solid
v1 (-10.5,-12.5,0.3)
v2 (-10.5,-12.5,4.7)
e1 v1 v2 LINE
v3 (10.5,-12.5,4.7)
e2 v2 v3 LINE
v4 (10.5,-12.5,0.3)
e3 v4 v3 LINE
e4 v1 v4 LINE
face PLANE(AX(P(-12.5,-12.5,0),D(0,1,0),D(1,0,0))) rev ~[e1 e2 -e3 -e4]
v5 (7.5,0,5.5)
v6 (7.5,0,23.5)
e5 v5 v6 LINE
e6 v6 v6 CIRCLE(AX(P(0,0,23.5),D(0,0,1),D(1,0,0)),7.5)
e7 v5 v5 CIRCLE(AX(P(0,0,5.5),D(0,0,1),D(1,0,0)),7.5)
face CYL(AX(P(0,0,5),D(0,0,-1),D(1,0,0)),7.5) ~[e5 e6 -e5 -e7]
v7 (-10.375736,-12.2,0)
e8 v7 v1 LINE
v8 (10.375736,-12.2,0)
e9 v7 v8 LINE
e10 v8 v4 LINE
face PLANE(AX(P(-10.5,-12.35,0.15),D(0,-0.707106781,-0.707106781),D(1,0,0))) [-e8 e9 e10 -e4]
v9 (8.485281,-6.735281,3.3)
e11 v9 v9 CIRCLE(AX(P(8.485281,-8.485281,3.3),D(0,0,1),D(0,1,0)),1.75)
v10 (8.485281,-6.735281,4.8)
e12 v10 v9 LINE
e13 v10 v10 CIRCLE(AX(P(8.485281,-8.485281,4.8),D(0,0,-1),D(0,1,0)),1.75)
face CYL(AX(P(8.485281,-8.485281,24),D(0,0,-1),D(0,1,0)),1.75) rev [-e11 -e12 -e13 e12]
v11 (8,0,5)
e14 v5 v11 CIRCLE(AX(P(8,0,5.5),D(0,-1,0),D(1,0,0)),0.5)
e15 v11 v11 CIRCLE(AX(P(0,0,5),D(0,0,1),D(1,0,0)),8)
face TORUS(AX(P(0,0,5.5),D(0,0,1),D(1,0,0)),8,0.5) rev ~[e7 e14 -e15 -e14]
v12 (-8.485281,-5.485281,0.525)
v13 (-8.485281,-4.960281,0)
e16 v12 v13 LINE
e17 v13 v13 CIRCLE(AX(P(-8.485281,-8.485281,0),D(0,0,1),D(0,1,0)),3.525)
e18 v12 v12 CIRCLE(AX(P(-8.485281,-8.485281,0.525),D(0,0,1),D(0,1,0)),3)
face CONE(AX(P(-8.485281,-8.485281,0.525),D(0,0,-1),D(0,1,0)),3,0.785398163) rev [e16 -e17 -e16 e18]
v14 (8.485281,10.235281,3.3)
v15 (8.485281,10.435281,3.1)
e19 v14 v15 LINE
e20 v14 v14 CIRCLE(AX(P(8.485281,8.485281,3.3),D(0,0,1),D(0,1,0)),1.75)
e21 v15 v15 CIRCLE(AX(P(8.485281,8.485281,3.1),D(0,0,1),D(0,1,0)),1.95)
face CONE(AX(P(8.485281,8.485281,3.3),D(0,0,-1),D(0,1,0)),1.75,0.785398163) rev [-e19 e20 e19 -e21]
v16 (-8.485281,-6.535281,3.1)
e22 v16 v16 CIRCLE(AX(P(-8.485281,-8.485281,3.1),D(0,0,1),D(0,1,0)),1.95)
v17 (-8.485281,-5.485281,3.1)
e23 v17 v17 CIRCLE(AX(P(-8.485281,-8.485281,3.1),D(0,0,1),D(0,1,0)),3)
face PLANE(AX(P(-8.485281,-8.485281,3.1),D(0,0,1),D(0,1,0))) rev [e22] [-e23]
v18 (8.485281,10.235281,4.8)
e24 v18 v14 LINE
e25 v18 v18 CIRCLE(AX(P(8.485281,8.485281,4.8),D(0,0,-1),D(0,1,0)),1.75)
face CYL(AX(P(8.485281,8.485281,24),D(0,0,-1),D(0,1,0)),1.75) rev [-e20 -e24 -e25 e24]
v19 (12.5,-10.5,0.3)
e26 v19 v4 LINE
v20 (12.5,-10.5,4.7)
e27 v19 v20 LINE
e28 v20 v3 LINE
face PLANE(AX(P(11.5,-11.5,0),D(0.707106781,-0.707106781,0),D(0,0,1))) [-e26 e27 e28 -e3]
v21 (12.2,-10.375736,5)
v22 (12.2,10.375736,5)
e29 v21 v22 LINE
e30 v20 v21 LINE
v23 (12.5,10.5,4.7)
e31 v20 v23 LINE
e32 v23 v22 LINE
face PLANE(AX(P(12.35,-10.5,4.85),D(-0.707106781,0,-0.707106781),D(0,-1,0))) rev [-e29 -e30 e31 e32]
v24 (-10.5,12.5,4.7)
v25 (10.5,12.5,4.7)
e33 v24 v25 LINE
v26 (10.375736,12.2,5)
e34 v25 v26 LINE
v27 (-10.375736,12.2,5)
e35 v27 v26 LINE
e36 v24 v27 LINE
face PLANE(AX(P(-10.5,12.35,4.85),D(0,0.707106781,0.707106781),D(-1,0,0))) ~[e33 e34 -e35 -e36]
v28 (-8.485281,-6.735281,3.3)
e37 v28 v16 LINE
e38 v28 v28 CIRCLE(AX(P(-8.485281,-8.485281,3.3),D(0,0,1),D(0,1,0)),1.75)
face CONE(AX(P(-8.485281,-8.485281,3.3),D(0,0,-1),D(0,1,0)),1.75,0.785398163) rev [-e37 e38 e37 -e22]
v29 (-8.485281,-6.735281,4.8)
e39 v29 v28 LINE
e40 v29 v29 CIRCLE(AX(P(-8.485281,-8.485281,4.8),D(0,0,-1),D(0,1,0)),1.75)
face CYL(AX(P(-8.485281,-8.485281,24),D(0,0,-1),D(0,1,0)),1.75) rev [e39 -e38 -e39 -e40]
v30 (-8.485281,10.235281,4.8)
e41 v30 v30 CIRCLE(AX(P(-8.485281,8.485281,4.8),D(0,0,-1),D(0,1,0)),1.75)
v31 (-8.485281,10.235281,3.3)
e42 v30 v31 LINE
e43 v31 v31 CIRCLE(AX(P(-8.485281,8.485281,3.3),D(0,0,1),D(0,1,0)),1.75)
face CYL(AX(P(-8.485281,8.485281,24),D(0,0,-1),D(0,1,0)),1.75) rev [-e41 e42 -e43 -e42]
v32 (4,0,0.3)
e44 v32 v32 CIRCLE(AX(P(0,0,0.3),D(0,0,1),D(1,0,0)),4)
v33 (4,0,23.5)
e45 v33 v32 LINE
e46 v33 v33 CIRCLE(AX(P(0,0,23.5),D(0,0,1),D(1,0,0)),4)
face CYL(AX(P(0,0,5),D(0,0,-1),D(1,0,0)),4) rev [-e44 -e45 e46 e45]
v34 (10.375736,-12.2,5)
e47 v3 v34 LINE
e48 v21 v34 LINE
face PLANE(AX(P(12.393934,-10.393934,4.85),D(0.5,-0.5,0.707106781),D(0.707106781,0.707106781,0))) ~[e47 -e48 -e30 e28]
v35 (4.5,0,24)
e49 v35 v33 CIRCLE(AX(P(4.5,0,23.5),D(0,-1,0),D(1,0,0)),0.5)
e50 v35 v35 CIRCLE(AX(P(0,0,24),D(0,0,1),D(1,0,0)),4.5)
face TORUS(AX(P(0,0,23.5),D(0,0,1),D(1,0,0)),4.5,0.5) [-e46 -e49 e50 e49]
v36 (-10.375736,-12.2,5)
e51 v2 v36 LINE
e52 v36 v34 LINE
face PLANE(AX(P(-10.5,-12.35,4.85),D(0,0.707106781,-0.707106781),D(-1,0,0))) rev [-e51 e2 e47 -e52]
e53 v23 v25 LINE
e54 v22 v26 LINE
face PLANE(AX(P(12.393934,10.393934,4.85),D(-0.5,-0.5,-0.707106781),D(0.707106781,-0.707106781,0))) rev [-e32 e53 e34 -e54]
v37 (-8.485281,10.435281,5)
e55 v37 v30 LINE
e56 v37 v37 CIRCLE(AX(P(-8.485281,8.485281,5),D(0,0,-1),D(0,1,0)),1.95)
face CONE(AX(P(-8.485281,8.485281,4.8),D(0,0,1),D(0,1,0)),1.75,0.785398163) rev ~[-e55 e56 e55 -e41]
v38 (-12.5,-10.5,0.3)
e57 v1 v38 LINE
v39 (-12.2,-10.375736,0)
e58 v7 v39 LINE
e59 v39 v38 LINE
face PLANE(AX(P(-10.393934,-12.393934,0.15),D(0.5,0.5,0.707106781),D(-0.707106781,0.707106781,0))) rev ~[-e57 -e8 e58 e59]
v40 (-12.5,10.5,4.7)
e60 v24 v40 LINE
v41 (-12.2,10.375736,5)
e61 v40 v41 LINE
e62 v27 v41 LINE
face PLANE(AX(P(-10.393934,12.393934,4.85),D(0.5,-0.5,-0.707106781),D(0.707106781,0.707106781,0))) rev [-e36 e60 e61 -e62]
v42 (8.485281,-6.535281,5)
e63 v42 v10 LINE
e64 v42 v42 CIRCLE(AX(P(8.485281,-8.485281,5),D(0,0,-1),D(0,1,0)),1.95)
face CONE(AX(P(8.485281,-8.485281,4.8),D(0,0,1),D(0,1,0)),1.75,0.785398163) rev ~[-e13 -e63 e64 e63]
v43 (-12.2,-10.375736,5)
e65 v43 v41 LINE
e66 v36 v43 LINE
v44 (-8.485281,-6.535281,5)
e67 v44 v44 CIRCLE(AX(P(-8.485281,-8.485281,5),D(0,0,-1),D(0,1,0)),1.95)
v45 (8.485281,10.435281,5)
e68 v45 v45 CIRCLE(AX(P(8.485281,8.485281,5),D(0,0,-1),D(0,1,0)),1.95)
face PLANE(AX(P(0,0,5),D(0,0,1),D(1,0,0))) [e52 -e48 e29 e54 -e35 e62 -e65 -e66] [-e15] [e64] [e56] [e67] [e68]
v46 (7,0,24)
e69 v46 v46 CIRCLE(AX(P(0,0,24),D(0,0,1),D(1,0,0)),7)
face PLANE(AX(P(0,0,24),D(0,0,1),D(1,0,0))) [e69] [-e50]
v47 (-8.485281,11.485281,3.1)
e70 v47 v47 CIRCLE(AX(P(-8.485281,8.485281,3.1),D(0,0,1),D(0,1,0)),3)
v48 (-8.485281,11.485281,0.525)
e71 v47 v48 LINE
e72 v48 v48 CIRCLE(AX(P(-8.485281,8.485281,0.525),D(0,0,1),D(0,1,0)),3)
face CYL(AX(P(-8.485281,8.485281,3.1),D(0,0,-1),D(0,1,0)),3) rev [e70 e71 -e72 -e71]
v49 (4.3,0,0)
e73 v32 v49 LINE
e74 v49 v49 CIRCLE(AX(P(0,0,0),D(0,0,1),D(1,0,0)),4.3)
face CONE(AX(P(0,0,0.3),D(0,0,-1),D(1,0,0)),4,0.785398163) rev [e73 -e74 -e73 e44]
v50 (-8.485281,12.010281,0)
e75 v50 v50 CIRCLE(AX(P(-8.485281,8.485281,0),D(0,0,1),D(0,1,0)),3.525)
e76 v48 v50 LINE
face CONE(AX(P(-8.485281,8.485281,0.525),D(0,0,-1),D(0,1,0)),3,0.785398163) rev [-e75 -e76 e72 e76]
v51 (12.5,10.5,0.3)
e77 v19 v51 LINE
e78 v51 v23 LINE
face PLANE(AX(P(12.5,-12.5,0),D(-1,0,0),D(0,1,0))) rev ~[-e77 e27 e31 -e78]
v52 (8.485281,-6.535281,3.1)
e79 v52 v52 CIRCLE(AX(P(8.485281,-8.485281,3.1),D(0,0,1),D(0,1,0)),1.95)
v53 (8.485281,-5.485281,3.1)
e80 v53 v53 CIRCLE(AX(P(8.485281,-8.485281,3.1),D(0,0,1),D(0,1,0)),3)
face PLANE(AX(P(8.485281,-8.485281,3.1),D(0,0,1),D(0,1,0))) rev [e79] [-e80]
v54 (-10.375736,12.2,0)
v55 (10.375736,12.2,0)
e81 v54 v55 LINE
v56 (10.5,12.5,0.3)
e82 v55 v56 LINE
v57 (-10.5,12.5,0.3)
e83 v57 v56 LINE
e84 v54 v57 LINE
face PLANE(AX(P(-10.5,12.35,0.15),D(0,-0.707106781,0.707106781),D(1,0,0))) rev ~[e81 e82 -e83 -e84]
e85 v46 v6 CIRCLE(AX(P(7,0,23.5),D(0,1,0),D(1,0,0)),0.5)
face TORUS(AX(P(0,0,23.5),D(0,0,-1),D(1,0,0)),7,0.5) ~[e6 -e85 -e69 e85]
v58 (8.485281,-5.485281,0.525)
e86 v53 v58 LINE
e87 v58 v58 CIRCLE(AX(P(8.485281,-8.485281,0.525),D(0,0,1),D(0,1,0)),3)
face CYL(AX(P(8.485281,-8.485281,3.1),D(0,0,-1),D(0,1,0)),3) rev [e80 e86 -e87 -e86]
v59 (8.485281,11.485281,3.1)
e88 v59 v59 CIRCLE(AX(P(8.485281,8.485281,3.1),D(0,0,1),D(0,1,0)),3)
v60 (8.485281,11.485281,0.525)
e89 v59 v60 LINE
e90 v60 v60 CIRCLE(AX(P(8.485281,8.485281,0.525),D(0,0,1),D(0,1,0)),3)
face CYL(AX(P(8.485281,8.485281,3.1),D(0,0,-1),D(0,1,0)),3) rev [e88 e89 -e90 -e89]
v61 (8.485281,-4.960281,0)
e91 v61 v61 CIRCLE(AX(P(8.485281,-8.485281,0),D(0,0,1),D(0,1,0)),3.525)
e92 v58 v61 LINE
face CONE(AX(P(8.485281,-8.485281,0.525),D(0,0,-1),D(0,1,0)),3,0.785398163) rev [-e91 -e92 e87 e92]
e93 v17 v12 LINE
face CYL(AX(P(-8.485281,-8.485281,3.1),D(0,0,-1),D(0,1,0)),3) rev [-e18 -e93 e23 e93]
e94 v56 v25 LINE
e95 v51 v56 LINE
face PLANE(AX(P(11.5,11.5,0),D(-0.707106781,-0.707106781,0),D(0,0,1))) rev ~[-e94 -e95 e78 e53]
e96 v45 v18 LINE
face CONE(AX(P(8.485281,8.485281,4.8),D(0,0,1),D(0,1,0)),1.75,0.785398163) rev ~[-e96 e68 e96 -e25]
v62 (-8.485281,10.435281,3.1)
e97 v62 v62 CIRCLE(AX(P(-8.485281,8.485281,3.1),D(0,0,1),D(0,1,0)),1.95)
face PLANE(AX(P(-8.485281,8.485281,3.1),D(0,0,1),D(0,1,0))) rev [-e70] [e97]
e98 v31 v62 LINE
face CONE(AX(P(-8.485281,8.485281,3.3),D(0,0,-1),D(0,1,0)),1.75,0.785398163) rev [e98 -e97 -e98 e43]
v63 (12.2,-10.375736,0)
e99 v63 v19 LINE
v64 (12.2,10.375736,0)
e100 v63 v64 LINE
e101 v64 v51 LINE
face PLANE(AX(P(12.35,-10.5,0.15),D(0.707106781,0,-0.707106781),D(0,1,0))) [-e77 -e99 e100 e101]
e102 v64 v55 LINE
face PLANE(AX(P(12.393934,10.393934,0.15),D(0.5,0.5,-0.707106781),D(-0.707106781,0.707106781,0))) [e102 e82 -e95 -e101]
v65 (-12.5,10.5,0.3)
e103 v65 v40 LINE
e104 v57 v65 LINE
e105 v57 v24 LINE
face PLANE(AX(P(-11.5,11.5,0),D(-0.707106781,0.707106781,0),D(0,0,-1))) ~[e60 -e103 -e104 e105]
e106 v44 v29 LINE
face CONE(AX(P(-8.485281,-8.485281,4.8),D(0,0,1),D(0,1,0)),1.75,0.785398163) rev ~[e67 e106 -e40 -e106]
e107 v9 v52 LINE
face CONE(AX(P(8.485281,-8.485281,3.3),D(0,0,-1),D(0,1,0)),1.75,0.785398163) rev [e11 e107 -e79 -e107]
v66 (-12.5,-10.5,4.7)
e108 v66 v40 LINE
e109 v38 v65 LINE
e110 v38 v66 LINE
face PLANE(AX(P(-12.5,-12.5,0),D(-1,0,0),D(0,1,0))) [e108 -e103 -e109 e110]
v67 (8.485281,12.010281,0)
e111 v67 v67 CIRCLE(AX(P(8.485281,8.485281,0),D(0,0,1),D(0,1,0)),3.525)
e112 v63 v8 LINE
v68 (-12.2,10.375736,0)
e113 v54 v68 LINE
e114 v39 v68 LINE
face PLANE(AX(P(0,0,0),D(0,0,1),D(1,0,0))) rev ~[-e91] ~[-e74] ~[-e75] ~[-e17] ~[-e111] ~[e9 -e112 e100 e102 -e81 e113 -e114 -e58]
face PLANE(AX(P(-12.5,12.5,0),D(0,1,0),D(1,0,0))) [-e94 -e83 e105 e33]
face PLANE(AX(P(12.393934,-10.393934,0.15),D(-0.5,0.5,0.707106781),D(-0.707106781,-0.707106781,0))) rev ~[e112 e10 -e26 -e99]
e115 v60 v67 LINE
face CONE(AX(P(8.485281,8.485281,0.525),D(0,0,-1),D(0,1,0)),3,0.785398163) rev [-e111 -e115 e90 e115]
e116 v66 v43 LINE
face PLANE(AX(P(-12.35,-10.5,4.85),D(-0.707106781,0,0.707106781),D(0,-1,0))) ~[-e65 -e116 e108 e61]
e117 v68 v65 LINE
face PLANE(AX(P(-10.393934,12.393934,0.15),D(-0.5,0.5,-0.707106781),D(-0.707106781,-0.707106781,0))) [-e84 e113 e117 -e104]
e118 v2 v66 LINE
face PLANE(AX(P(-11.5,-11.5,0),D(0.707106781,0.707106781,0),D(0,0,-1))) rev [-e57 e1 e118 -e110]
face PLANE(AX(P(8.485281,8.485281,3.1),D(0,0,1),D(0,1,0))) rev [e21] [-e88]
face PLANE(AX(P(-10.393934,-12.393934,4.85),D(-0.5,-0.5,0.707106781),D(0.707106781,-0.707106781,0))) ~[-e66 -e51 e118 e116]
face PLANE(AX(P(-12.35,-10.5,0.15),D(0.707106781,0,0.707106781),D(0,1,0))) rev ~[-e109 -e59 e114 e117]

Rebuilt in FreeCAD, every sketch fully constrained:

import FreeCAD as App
import Part
import Sketcher

V = App.Vector
Q = App.Units.Quantity


def edges_at(feature, points):
    """Names of the edges that pass closest to the given points."""
    edges = feature.Shape.Edges
    near = lambda p: min(range(len(edges)), key=lambda i: edges[i].distToShape(Part.Vertex(*p))[0])
    return sorted({f"Edge{near(p) + 1}" for p in points})

doc = App.newDocument("Part")
body = doc.addObject("PartDesign::Body", "Body")

# Sketch on XY plane
sketch1 = body.newObject("Sketcher::SketchObject", "Sketch")
sketch1.AttachmentSupport = (doc.getObject("XY_Plane"), [""])
sketch1.MapMode = "FlatFace"
sketch1.addGeometry([
    Part.LineSegment(V(-12.5, 12.5, 0), V(-12.5, -12.5, 0)),  # 0
    Part.LineSegment(V(-12.5, -12.5, 0), V(12.5, -12.5, 0)),  # 1
    Part.LineSegment(V(12.5, -12.5, 0), V(12.5, 12.5, 0)),  # 2
    Part.LineSegment(V(12.5, 12.5, 0), V(-12.5, 12.5, 0)),  # 3
    Part.Circle(V(0, 0, 0), V(0, 0, 1), 4),  # 4
], False)
sketch1.addConstraint([
    Sketcher.Constraint("Coincident", 0, 2, 1, 1),
    Sketcher.Constraint("Coincident", 1, 2, 2, 1),
    Sketcher.Constraint("Coincident", 2, 2, 3, 1),
    Sketcher.Constraint("Coincident", 3, 2, 0, 1),
    Sketcher.Constraint("Vertical", 0),
    Sketcher.Constraint("Horizontal", 1),
    Sketcher.Constraint("Vertical", 2),
    Sketcher.Constraint("Horizontal", 3),
    Sketcher.Constraint("Coincident", 4, 3, -1, 1),
    Sketcher.Constraint("Symmetric", 0, 2, 2, 2, -1, 1),
    Sketcher.Constraint("Equal", 3, 0),
    Sketcher.Constraint("Diameter", 4, Q("8 mm")),
    Sketcher.Constraint("DistanceX", 1, 1, 1, 2, Q("25 mm")),
])
pad1 = body.newObject("PartDesign::Pad", "Pad")
pad1.Profile = sketch1
pad1.Length = 5

# Sketch on XY plane
sketch2 = body.newObject("Sketcher::SketchObject", "Sketch001")
sketch2.AttachmentSupport = (doc.getObject("XY_Plane"), [""])
sketch2.MapMode = "FlatFace"
sketch2.AttachmentOffset = App.Placement(V(0, 0, 5), App.Rotation())
sketch2.addGeometry([
    Part.Circle(V(0, 0, 0), V(0, 0, 1), 7.5),
    Part.Circle(V(0, 0, 0), V(0, 0, 1), 4),
], False)
sketch2.addConstraint([
    Sketcher.Constraint("Coincident", 0, 3, -1, 1),
    Sketcher.Constraint("Coincident", 1, 3, -1, 1),
    Sketcher.Constraint("Diameter", 0, Q("15 mm")),
    Sketcher.Constraint("Diameter", 1, Q("8 mm")),
])
pad2 = body.newObject("PartDesign::Pad", "Pad001")
pad2.Profile = sketch2
pad2.Length = 19
doc.recompute()

chamfer = body.newObject("PartDesign::Chamfer", "Chamfer")
chamfer.Base = (pad2, edges_at(pad2, [
    (12.5, -12.5, 2.5),
    (-12.5, -12.5, 2.5),
    (-12.5, 12.5, 2.5),
    (12.5, 12.5, 2.5),
]))
chamfer.Size = 2

# Sketch on YZ plane
sketch3 = body.newObject("Sketcher::SketchObject", "Sketch002")
sketch3.AttachmentSupport = (doc.getObject("YZ_Plane"), [""])
sketch3.MapMode = "FlatFace"
sketch3.AttachmentOffset = App.Placement(V(0, 0, 8.485281), App.Rotation())
sketch3.addGeometry([
    Part.LineSegment(V(8.5, 24, 0), V(8.5, 0, 0)),  # 0
    Part.LineSegment(V(8.5, 0, 0), V(12, 0, 0)),  # 1
    Part.LineSegment(V(12, 0, 0), V(11.5, 0.5, 0)),  # 2
    Part.LineSegment(V(11.5, 0.5, 0), V(11.5, 3.1, 0)),  # 3
    Part.LineSegment(V(11.5, 3.1, 0), V(10.2, 3.1, 0)),  # 4
    Part.LineSegment(V(10.2, 3.1, 0), V(10.2, 24, 0)),  # 5
    Part.LineSegment(V(10.2, 24, 0), V(8.5, 24, 0)),  # 6
], False)
sketch3.addGeometry(Part.LineSegment(V(8.5, 0, 0), V(8.5, 24, 0)), True)  # axis
sketch3.addConstraint([
    Sketcher.Constraint("Coincident", 0, 2, 1, 1),
    Sketcher.Constraint("Coincident", 1, 2, 2, 1),
    Sketcher.Constraint("Coincident", 2, 2, 3, 1),
    Sketcher.Constraint("Coincident", 3, 2, 4, 1),
    Sketcher.Constraint("Coincident", 4, 2, 5, 1),
    Sketcher.Constraint("Coincident", 5, 2, 6, 1),
    Sketcher.Constraint("Coincident", 6, 2, 0, 1),
    Sketcher.Constraint("Vertical", 0),
    Sketcher.Constraint("Horizontal", 1),
    Sketcher.Constraint("Vertical", 3),
    Sketcher.Constraint("Horizontal", 4),
    Sketcher.Constraint("Vertical", 5),
    Sketcher.Constraint("Horizontal", 6),
    Sketcher.Constraint("Vertical", 7),
    Sketcher.Constraint("Coincident", 7, 1, 0, 2),
    Sketcher.Constraint("PointOnObject", 0, 2, -1),
    Sketcher.Constraint("Horizontal", 5, 2, 7, 2),
    Sketcher.Constraint("DistanceY", 0, 2, 0, 1, Q("24 mm")),
    Sketcher.Constraint("Angle", 2, Q("135 deg")),
    Sketcher.Constraint("DistanceY", 5, 1, 5, 2, Q("20.9 mm")),
    Sketcher.Constraint("DistanceX", 0, 2, 2, 2, Q("3 mm")),
    Sketcher.Constraint("DistanceX", 4, 2, 4, 1, Q("1.25 mm")),
    Sketcher.Constraint("DistanceX", 1, 1, 1, 2, Q("3.525 mm")),
    Sketcher.Constraint("DistanceX", -1, 1, 0, 2, Q("8.485281 mm")),
])
groove = body.newObject("PartDesign::Groove", "Groove")
groove.Profile = sketch3
groove.ReferenceAxis = (sketch3, ["Axis0"])
groove.Angle = 360
doc.recompute()

linearpattern = body.newObject("PartDesign::LinearPattern", "LinearPattern")
linearpattern.Originals = [groove]
linearpattern.Direction = (doc.getObject("X_Axis"), [""])
linearpattern.Mode = "offset"
linearpattern.Offset = 16.970563
linearpattern.Occurrences = 2
linearpattern.Reversed = True
body.Tip = linearpattern
doc.recompute()

datumline = body.newObject("PartDesign::Line", "DatumLine")
datumline.Placement = App.Placement(V(0, 0, 0), App.Rotation(V(0, 0, 1), V(-0.707106781, -0.707106781, 0)))
linearpattern2 = body.newObject("PartDesign::LinearPattern", "LinearPattern001")
linearpattern2.Originals = [groove]
linearpattern2.Direction = (datumline, [""])
linearpattern2.Mode = "offset"
linearpattern2.Offset = 24
linearpattern2.Occurrences = 2
body.Tip = linearpattern2
doc.recompute()

linearpattern3 = body.newObject("PartDesign::LinearPattern", "LinearPattern002")
linearpattern3.Originals = [groove]
linearpattern3.Direction = (doc.getObject("Y_Axis"), [""])
linearpattern3.Mode = "offset"
linearpattern3.Offset = 16.970563
linearpattern3.Occurrences = 2
linearpattern3.Reversed = True
body.Tip = linearpattern3
doc.recompute()

chamfer2 = body.newObject("PartDesign::Chamfer", "Chamfer001")
chamfer2.Base = (linearpattern3, edges_at(linearpattern3, [
    (-12.5, 0, 0),
    (-12.5, 0, 5),
    (12.5, 0, 0),
    (0, -12.5, 0),
    (0, 12.5, 0),
    (11.5, 11.5, 0),
    (11.5, -11.5, 0),
    (-11.5, -11.5, 0),
    (-11.5, 11.5, 0),
    (0, 12.5, 5),
    (12.5, 0, 5),
    (0, -12.5, 5),
    (11.5, 11.5, 5),
    (11.5, -11.5, 5),
    (-11.5, -11.5, 5),
    (-11.5, 11.5, 5),
]))
chamfer2.Size = 0.3
doc.recompute()

fillet = body.newObject("PartDesign::Fillet", "Fillet")
fillet.Base = (chamfer2, edges_at(chamfer2, [(-7.5, 0, 24)]))
fillet.Radius = 0.5
doc.recompute()

fillet2 = body.newObject("PartDesign::Fillet", "Fillet001")
fillet2.Base = (fillet, edges_at(fillet, [(-4, 0, 24)]))
fillet2.Radius = 0.5
doc.recompute()

chamfer3 = body.newObject("PartDesign::Chamfer", "Chamfer002")
chamfer3.Base = (fillet2, edges_at(fillet2, [(-4, 0, 0)]))
chamfer3.Size = 0.3
doc.recompute()

fillet3 = body.newObject("PartDesign::Fillet", "Fillet002")
fillet3.Base = (chamfer3, edges_at(chamfer3, [(-7.5, 0, 5)]))
fillet3.Radius = 0.5
doc.recompute()

chamfer4 = body.newObject("PartDesign::Chamfer", "Chamfer003")
chamfer4.Base = (fillet3, edges_at(fillet3, [
    (8.485, -10.235, 5),
    (8.485, -10.235, 3.1),
    (-8.485, -10.235, 5),
    (-8.485, -10.235, 3.1),
    (-8.485, 6.735, 5),
    (-8.485, 6.735, 3.1),
    (8.485, 6.735, 5),
    (8.485, 6.735, 3.1),
]))
chamfer4.Size = 0.2

doc.recompute()
